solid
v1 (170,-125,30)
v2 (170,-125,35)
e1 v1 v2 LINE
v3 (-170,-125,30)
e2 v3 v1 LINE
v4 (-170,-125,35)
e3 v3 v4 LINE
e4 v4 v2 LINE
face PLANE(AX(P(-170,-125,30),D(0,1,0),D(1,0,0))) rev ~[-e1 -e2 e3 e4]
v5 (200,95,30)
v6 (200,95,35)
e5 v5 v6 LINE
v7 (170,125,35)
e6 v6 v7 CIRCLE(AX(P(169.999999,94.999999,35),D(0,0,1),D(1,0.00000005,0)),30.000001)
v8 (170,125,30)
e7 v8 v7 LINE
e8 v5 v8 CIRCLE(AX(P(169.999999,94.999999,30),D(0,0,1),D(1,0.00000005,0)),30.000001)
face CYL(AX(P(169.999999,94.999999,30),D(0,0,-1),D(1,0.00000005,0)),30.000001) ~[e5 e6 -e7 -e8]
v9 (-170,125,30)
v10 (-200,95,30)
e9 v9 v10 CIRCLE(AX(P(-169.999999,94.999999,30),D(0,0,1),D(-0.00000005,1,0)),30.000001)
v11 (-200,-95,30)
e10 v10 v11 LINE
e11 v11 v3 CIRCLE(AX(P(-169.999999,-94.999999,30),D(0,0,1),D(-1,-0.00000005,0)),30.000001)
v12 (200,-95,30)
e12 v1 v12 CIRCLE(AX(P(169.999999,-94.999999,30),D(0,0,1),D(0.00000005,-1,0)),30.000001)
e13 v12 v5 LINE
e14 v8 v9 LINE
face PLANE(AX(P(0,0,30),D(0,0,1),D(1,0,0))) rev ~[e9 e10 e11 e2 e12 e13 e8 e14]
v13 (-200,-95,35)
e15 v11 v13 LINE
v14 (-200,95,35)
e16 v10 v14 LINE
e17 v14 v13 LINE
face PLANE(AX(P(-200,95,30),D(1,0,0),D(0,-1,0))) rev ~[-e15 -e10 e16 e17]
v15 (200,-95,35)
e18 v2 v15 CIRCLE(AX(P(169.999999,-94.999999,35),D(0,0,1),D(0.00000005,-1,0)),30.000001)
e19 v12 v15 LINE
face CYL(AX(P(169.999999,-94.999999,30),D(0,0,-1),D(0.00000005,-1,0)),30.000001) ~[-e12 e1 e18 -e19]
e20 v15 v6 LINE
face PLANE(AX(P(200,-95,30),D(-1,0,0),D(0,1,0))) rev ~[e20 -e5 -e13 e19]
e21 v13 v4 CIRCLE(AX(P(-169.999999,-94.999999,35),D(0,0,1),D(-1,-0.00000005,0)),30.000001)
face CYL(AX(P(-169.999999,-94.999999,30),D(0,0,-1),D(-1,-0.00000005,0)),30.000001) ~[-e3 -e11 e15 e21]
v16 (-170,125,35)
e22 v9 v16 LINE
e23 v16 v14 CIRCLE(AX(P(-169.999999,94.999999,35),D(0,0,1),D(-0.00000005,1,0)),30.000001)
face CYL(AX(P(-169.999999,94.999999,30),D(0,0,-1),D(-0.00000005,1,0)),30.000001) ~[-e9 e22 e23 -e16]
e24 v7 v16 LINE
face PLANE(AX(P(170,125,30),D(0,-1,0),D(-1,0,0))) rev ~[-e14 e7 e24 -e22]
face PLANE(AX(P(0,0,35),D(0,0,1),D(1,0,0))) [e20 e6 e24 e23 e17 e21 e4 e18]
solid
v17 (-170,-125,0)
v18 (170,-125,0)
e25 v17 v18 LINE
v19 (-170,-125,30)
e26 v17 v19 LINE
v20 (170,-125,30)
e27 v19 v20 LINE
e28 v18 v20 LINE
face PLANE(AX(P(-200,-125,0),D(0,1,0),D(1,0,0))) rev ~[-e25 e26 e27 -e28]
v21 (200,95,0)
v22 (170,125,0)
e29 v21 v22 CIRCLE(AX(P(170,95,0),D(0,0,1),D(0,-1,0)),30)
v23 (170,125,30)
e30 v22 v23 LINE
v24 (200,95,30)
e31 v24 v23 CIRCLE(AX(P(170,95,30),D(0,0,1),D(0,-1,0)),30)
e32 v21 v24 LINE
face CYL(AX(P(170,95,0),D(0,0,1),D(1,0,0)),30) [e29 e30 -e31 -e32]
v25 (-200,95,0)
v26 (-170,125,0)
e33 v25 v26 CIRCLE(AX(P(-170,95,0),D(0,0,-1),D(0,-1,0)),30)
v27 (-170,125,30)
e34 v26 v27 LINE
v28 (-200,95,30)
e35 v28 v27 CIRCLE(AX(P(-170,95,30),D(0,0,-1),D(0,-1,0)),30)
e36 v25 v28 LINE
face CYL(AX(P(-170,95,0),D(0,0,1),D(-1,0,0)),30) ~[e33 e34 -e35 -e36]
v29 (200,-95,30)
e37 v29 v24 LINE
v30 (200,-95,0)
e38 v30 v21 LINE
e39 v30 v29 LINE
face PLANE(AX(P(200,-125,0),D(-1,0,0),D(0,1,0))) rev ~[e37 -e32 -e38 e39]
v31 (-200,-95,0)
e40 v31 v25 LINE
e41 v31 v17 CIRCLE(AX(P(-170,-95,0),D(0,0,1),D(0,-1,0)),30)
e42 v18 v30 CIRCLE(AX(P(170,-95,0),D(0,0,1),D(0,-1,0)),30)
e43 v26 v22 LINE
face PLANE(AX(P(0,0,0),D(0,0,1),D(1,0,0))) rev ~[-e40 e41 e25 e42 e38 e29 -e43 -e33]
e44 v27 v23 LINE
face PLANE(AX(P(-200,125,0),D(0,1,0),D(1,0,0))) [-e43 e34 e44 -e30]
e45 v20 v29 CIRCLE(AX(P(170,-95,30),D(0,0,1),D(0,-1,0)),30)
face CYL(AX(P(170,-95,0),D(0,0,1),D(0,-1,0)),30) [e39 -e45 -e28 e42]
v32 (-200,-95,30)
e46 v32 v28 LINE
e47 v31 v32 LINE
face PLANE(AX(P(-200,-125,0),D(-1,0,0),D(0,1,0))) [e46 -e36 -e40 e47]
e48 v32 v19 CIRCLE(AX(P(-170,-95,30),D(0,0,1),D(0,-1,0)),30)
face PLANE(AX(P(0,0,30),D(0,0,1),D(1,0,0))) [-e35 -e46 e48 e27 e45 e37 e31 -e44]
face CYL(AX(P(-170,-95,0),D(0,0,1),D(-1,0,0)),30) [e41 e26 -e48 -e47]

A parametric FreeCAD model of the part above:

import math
import FreeCAD as App
import Part
import Sketcher
Q = App.Units.Quantity


def edges_at(feature, points):
    """Names of the edges that pass closest to the given points."""
    edges = feature.Shape.Edges
    near = lambda p: min(range(len(edges)), key=lambda i: edges[i].distToShape(Part.Vertex(*p))[0])
    return sorted({f"Edge{near(p) + 1}" for p in points})


def add_polygon(sketch, points):
    """Adds a closed chain of lines whose ends are joined by coincident constraints."""
    first, n = sketch.GeometryCount, len(points)
    for a, b in zip(points, points[1:] + points[:1]):
        sketch.addGeometry(Part.LineSegment(App.Vector(*a, 0), App.Vector(*b, 0)), False)
    for i in range(n):
        sketch.addConstraint(Sketcher.Constraint("Coincident", first + i, 2, first + (i + 1) % n, 1))

doc = App.newDocument("Part")
body = doc.addObject("PartDesign::Body", "Body")

sketch1 = body.newObject("Sketcher::SketchObject", "Sketch")
sketch1.AttachmentSupport = (doc.getObject("XY_Plane"), [""])
sketch1.MapMode = "FlatFace"
add_polygon(sketch1, [(-200, 125), (-200, -125), (200, -125), (200, 125)])
sketch1.addConstraint(Sketcher.Constraint("Vertical", 0))
sketch1.addConstraint(Sketcher.Constraint("Horizontal", 1))
sketch1.addConstraint(Sketcher.Constraint("Vertical", 2))
sketch1.addConstraint(Sketcher.Constraint("Horizontal", 3))
sketch1.addConstraint(Sketcher.Constraint("Symmetric", 0, 2, 2, 2, -1, 1))
sketch1.addConstraint(Sketcher.Constraint("DistanceX", 1, 1, 1, 2, Q("400 mm")))
sketch1.addConstraint(Sketcher.Constraint("DistanceY", 0, 2, 0, 1, Q("250 mm")))
pad1 = body.newObject("PartDesign::Pad", "Pad")
pad1.Profile = sketch1
pad1.Length = 30
doc.recompute()

fillet = body.newObject("PartDesign::Fillet", "Fillet")
fillet.Base = (pad1, edges_at(pad1, [
    (-200, -125, 15),
    (200, -125, 15),
    (200, 125, 15),
    (-200, 125, 15),
]))
fillet.Radius = 30
body2 = doc.addObject("PartDesign::Body", "Body001")

sketch2 = body2.newObject("Sketcher::SketchObject", "Sketch001")
sketch2.AttachmentSupport = (doc.getObject("XY_Plane001"), [""])
sketch2.MapMode = "FlatFace"
sketch2.AttachmentOffset = App.Placement(App.Vector(0, 0, 30), App.Rotation())
sketch2.addGeometry(Part.LineSegment(App.Vector(-170, -125, 0), App.Vector(170, -125, 0)), False)
sketch2.addGeometry(Part.ArcOfCircle(Part.Circle(App.Vector(169.999999, -94.999999, 0), App.Vector(0, 0, 1), 30.000001), math.radians(-89.999997), math.radians(-0.000003)), False)
sketch2.addGeometry(Part.LineSegment(App.Vector(200, -95, 0), App.Vector(200, 95, 0)), False)
sketch2.addGeometry(Part.ArcOfCircle(Part.Circle(App.Vector(169.999999, 94.999999, 0), App.Vector(0, 0, 1), 30.000001), math.radians(0.000003), math.radians(89.999997)), False)
sketch2.addGeometry(Part.LineSegment(App.Vector(170, 125, 0), App.Vector(-170, 125, 0)), False)
sketch2.addGeometry(Part.ArcOfCircle(Part.Circle(App.Vector(-169.999999, 94.999999, 0), App.Vector(0, 0, 1), 30.000001), math.radians(90.000003), math.radians(179.999997)), False)
sketch2.addGeometry(Part.LineSegment(App.Vector(-200, 95, 0), App.Vector(-200, -95, 0)), False)
sketch2.addGeometry(Part.ArcOfCircle(Part.Circle(App.Vector(-169.999999, -94.999999, 0), App.Vector(0, 0, 1), 30.000001), math.radians(-179.999997), math.radians(-90.000003)), False)
sketch2.addConstraint(Sketcher.Constraint("Tangent", 0, 2, 1, 1))
sketch2.addConstraint(Sketcher.Constraint("Tangent", 1, 2, 2, 1))
sketch2.addConstraint(Sketcher.Constraint("Tangent", 2, 2, 3, 1))
sketch2.addConstraint(Sketcher.Constraint("Tangent", 3, 2, 4, 1))
sketch2.addConstraint(Sketcher.Constraint("Tangent", 4, 2, 5, 1))
sketch2.addConstraint(Sketcher.Constraint("Tangent", 5, 2, 6, 1))
sketch2.addConstraint(Sketcher.Constraint("Tangent", 6, 2, 7, 1))
sketch2.addConstraint(Sketcher.Constraint("Tangent", 7, 2, 0, 1))
sketch2.addConstraint(Sketcher.Constraint("Horizontal", 0))
sketch2.addConstraint(Sketcher.Constraint("Vertical", 2))
sketch2.addConstraint(Sketcher.Constraint("Horizontal", 4))
sketch2.addConstraint(Sketcher.Constraint("Vertical", 6))
sketch2.addConstraint(Sketcher.Constraint("Equal", 1, 3))
sketch2.addConstraint(Sketcher.Constraint("Equal", 3, 5))
sketch2.addConstraint(Sketcher.Constraint("Equal", 5, 7))
sketch2.addConstraint(Sketcher.Constraint("Symmetric", 1, 3, 5, 3, -1, 1))
sketch2.addConstraint(Sketcher.Constraint("Radius", 1, Q("30.000001 mm")))
sketch2.addConstraint(Sketcher.Constraint("DistanceX", 0, 1, 0, 2, Q("340 mm")))
sketch2.addConstraint(Sketcher.Constraint("DistanceY", 2, 1, 2, 2, Q("190 mm")))
pad2 = body2.newObject("PartDesign::Pad", "Pad001")
pad2.Profile = sketch2
pad2.Length = 5

doc.recompute()
